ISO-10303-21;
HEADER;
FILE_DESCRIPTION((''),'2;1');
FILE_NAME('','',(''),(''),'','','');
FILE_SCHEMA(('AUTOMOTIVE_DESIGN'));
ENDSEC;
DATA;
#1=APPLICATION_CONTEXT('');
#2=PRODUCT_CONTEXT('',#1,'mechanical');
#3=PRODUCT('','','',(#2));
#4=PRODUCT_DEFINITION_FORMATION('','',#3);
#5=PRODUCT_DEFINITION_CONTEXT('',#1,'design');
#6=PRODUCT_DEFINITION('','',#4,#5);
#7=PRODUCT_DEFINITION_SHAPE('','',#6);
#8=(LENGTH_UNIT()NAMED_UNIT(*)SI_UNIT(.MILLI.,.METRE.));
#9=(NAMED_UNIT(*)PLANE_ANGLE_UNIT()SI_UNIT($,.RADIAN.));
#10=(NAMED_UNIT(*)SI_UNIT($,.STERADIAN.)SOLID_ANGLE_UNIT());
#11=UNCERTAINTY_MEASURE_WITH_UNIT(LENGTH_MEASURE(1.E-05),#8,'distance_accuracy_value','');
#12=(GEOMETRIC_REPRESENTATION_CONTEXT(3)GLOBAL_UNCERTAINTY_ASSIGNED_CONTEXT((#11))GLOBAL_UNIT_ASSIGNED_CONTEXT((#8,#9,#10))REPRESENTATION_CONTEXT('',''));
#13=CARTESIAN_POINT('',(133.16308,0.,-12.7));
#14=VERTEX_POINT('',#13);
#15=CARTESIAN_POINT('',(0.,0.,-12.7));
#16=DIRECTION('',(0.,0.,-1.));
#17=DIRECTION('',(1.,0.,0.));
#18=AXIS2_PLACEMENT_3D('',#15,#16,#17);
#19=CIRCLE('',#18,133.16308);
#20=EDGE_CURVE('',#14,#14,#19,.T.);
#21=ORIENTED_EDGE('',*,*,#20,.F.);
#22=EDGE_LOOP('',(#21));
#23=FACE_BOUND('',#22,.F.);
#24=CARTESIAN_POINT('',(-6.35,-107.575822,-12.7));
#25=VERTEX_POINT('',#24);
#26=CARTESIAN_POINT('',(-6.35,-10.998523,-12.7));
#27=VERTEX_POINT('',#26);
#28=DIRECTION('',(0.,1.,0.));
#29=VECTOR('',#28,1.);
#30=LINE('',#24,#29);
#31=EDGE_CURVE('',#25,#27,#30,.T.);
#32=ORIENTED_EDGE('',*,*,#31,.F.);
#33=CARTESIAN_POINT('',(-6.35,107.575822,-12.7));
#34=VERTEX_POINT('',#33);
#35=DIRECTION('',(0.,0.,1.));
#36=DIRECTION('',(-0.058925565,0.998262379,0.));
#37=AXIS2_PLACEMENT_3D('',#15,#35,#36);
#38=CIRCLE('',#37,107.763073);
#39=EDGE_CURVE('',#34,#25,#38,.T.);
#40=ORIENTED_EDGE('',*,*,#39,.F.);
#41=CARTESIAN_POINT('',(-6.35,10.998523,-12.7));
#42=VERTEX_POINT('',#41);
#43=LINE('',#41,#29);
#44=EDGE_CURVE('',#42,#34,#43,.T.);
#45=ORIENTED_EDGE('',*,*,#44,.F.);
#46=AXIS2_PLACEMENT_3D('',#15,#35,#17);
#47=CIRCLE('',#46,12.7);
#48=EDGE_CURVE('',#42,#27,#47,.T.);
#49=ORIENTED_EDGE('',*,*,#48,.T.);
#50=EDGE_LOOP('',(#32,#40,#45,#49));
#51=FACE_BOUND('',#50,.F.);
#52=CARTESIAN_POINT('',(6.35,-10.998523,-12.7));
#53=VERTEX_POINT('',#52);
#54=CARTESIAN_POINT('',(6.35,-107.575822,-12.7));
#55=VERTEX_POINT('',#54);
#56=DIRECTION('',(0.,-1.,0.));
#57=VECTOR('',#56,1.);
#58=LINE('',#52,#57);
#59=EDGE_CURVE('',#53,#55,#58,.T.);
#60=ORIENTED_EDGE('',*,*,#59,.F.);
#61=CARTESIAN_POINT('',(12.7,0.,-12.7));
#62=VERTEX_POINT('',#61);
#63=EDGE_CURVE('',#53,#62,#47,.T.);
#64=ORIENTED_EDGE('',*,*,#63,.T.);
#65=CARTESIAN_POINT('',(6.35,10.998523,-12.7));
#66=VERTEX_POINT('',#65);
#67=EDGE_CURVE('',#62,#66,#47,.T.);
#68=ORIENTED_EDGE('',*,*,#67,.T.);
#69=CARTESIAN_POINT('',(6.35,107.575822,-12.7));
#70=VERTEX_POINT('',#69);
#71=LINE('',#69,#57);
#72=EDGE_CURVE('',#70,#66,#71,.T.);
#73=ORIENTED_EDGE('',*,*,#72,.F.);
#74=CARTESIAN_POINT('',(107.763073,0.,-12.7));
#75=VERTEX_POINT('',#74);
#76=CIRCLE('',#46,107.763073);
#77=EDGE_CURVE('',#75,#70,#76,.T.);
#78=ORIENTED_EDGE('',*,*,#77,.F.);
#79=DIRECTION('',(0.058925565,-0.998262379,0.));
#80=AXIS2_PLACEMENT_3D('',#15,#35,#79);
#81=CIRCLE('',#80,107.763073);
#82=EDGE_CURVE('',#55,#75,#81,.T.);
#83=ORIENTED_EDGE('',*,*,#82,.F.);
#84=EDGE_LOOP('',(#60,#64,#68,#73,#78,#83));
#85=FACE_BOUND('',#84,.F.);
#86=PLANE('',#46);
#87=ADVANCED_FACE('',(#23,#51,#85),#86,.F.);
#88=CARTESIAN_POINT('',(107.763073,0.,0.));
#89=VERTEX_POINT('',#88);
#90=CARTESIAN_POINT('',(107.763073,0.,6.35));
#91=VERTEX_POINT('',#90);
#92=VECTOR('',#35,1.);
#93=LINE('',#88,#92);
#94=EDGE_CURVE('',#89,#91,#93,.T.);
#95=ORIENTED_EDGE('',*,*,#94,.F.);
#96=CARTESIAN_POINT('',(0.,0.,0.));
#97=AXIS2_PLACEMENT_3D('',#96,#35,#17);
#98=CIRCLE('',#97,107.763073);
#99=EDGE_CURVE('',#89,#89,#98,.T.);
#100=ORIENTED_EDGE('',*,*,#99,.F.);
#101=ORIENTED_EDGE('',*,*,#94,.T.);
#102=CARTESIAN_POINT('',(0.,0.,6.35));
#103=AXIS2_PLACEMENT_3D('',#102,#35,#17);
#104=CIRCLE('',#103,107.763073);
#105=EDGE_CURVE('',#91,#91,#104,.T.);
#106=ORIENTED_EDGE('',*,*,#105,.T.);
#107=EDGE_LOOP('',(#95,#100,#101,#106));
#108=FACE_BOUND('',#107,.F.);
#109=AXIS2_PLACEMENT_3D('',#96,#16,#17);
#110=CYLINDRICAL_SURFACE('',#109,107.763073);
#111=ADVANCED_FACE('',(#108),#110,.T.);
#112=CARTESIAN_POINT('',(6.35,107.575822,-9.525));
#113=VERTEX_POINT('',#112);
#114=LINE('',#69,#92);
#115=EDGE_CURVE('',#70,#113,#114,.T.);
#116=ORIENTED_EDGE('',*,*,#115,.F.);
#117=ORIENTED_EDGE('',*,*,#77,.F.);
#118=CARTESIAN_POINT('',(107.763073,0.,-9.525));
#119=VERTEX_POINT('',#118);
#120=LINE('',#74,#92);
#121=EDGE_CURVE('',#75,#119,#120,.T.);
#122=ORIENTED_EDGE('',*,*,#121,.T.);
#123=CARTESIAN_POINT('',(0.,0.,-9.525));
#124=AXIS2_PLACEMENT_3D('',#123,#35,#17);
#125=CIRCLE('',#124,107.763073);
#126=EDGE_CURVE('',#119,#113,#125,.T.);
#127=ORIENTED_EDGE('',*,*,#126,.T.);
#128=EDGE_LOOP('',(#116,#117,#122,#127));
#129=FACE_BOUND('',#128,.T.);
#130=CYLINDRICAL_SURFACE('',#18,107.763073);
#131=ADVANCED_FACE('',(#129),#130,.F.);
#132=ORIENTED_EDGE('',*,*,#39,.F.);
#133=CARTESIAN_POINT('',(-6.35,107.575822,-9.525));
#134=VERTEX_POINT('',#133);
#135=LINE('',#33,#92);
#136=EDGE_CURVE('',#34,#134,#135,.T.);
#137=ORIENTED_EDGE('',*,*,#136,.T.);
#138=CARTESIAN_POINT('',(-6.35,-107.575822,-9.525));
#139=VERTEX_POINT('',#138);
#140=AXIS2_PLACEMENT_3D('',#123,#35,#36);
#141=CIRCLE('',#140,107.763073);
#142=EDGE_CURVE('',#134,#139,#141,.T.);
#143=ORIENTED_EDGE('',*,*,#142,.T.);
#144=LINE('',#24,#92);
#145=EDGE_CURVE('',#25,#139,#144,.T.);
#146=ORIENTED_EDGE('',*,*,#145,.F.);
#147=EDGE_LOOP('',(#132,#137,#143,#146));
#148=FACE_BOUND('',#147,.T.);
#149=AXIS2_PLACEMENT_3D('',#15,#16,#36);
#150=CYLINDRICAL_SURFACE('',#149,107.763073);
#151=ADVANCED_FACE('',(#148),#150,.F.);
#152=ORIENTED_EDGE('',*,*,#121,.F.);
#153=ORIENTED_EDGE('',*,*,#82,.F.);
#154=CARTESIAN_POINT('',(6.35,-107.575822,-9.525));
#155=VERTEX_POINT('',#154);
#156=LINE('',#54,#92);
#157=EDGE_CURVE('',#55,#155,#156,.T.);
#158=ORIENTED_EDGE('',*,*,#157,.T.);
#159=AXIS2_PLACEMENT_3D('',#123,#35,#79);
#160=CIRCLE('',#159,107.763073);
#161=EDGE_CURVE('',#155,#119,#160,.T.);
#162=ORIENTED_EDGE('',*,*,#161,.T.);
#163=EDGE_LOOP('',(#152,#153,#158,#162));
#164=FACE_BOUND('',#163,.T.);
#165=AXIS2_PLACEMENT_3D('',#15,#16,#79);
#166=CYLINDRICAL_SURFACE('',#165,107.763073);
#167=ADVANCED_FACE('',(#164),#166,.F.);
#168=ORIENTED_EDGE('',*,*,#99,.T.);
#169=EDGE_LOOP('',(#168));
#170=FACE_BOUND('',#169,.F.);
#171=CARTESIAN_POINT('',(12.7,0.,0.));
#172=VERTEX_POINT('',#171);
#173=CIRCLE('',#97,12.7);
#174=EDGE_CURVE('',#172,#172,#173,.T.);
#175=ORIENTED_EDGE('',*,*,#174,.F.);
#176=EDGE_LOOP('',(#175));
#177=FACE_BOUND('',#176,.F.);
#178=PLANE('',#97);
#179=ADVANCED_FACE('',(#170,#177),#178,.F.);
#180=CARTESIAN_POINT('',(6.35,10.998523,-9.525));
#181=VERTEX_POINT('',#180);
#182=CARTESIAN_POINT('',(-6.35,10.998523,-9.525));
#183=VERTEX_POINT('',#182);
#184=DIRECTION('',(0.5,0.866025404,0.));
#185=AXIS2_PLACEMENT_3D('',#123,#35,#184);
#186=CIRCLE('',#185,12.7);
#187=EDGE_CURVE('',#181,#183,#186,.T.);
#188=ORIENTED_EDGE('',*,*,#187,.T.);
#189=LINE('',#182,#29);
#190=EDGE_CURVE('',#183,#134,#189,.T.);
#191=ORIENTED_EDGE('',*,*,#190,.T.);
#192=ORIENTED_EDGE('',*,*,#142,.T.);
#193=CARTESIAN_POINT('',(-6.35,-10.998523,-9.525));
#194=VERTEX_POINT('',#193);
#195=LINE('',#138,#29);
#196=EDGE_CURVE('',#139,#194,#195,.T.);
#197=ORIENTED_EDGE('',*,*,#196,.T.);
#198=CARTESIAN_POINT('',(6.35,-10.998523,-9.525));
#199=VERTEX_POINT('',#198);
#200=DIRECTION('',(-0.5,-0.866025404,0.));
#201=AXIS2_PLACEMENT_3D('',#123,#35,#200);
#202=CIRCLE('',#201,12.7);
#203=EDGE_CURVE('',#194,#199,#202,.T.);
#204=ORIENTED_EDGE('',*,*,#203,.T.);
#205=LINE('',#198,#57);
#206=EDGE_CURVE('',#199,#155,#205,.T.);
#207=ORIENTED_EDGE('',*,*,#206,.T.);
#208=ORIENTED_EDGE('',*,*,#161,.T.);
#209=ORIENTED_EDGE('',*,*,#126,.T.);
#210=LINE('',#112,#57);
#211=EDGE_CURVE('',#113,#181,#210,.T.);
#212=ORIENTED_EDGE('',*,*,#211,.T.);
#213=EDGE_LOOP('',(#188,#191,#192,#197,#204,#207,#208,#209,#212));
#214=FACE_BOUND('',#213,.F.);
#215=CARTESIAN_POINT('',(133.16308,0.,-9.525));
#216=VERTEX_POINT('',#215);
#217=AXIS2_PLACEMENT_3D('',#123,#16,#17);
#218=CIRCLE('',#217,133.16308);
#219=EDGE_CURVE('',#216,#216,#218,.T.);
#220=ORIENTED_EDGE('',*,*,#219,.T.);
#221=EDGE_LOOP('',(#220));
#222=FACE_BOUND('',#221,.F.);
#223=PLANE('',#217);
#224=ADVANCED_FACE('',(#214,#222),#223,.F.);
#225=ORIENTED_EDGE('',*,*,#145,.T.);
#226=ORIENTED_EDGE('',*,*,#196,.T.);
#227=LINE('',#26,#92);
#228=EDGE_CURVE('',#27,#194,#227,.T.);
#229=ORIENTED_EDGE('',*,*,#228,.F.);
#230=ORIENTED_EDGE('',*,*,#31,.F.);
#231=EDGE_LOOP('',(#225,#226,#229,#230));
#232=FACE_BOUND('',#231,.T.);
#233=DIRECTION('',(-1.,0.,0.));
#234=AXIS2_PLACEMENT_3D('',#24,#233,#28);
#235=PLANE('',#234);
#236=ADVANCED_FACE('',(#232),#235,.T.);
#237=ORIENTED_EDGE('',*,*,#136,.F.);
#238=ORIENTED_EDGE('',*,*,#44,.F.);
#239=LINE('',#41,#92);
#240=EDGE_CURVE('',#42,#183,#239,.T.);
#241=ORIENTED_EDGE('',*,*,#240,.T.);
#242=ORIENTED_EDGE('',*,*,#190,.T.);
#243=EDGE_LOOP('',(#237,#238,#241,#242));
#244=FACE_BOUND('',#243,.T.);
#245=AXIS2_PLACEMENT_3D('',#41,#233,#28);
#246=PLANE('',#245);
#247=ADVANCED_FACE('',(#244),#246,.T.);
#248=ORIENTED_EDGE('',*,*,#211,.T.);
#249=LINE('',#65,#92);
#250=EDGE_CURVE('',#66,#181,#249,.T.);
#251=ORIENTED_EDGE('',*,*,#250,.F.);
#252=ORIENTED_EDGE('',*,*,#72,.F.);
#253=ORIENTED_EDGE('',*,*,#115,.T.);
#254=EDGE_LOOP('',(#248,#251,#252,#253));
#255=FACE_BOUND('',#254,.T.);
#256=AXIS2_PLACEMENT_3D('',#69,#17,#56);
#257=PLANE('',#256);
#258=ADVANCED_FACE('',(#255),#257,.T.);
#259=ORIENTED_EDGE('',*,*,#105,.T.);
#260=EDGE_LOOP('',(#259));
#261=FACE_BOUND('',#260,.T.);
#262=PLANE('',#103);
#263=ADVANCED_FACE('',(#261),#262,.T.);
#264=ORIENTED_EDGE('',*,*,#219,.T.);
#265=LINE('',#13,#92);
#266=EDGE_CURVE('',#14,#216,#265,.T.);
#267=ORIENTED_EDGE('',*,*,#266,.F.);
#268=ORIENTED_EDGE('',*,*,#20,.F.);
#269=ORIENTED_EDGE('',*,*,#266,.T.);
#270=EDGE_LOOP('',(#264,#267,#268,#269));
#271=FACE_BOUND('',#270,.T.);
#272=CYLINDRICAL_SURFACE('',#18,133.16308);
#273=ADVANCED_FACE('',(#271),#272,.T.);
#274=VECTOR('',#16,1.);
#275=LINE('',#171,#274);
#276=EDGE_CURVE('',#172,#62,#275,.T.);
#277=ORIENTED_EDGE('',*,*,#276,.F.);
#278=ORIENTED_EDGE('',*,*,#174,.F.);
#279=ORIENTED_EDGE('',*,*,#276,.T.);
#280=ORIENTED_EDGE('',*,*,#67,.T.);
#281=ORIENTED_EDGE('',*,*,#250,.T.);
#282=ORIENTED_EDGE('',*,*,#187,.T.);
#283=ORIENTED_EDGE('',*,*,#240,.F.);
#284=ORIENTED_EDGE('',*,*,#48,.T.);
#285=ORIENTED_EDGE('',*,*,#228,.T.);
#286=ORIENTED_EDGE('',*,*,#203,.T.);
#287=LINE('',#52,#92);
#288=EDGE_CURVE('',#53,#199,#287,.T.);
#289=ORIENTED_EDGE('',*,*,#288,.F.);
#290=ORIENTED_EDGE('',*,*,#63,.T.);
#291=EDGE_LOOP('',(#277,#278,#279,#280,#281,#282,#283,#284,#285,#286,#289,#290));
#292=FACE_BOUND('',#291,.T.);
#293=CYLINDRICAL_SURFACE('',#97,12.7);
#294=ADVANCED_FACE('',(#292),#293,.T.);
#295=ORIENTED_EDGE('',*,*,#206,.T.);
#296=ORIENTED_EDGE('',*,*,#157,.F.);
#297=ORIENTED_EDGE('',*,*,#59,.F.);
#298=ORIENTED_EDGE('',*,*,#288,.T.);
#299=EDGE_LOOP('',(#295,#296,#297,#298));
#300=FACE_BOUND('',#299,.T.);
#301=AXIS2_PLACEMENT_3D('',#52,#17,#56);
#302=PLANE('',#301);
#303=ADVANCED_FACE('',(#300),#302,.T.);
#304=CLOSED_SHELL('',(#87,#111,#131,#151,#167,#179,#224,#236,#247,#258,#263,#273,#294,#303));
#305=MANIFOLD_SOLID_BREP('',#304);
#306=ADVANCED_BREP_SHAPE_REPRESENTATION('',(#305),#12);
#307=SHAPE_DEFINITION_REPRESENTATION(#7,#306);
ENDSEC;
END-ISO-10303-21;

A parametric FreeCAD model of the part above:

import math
import FreeCAD as App
import Part
import Sketcher
from FreeCAD import Vector
Q = App.Units.Quantity

doc = App.newDocument("Part")
params = doc.addObject("Spreadsheet::Sheet", "Params")
for row, (alias, value) in enumerate([
    ("pad1_length", "0.25 in"),
    ("sketch2_diameter", "1 in"),
    ("pad2_length", "0.5 in"),
    ("sketch3_radius", "0.5 in"),
    ("pad3_length", "0.125 in"),
], start=1):
    params.set(f"A{row}", alias)
    params.set(f"B{row}", "=" + value)
    params.setAlias(f"B{row}", alias)

body = doc.addObject("PartDesign::Body", "Body")

sketch1 = body.newObject("Sketcher::SketchObject", "Sketch")
sketch1.AttachmentSupport = (doc.getObject("XY_Plane"), [""])
sketch1.MapMode = "FlatFace"
sketch1.addGeometry(Part.Circle(Vector(0, 0, 0), Vector(0, 0, 1), 107.763073), False)
sketch1.addConstraint(Sketcher.Constraint("Coincident", 0, 3, -1, 1))
sketch1.addConstraint(Sketcher.Constraint("Diameter", 0, Q("215.526147 mm")))
pad1 = body.newObject("PartDesign::Pad", "Pad")
pad1.Profile = sketch1
pad1.setExpression("Length", "Params.pad1_length")

sketch2 = body.newObject("Sketcher::SketchObject", "Sketch001")
sketch2.AttachmentSupport = (doc.getObject("XY_Plane"), [""])
sketch2.MapMode = "FlatFace"
sketch2.addGeometry(Part.Circle(Vector(0, 0, 0), Vector(0, 0, 1), 12.7), False)
sketch2.addConstraint(Sketcher.Constraint("Coincident", 0, 3, -1, 1))
sketch2.addConstraint(Sketcher.Constraint("Diameter", 0, Q("1 in")))
sketch2.setExpression("Constraints[1]", "Params.sketch2_diameter")
pad2 = body.newObject("PartDesign::Pad", "Pad001")
pad2.Profile = sketch2
pad2.setExpression("Length", "Params.pad2_length")
pad2.Reversed = True

sketch3 = body.newObject("Sketcher::SketchObject", "Sketch002")
sketch3.AttachmentSupport = (doc.getObject("XY_Plane"), [""])
sketch3.MapMode = "FlatFace"
sketch3.AttachmentOffset = App.Placement(Vector(0, 0, -0.5 * 25.4), App.Rotation())
sketch3.addGeometry(Part.Circle(Vector(0, 0, 0), Vector(0, 0, 1), 133.16308), False)
sketch3.addGeometry(Part.ArcOfCircle(Part.Circle(Vector(0, 0, 0), Vector(0, 0, 1), 107.763073), math.radians(-86.621857), math.radians(0)), False)
sketch3.addGeometry(Part.ArcOfCircle(Part.Circle(Vector(0, 0, 0), Vector(0, 0, 1), 107.763073), math.radians(0), math.radians(86.621857)), False)
sketch3.addGeometry(Part.LineSegment(Vector(6.35, 107.575822, 0), Vector(6.35, 10.998523, 0)), False)
sketch3.addGeometry(Part.ArcOfCircle(Part.Circle(Vector(0, 0, 0), Vector(0, 0, 1), 12.7), math.radians(60), math.radians(120)), False)
sketch3.addGeometry(Part.LineSegment(Vector(-6.35, 10.998523, 0), Vector(-6.35, 107.575822, 0)), False)
sketch3.addGeometry(Part.ArcOfCircle(Part.Circle(Vector(0, 0, 0), Vector(0, 0, 1), 107.763073), math.radians(93.378143), math.radians(266.621857)), False)
sketch3.addGeometry(Part.LineSegment(Vector(-6.35, -107.575822, 0), Vector(-6.35, -10.998523, 0)), False)
sketch3.addGeometry(Part.ArcOfCircle(Part.Circle(Vector(0, 0, 0), Vector(0, 0, 1), 12.7), math.radians(-120), math.radians(-60)), False)
sketch3.addGeometry(Part.LineSegment(Vector(6.35, -10.998523, 0), Vector(6.35, -107.575822, 0)), False)
sketch3.addConstraint(Sketcher.Constraint("Tangent", 1, 2, 2, 1))
sketch3.addConstraint(Sketcher.Constraint("Coincident", 2, 2, 3, 1))
sketch3.addConstraint(Sketcher.Constraint("Coincident", 3, 2, 4, 1))
sketch3.addConstraint(Sketcher.Constraint("Coincident", 4, 2, 5, 1))
sketch3.addConstraint(Sketcher.Constraint("Coincident", 5, 2, 6, 1))
sketch3.addConstraint(Sketcher.Constraint("Coincident", 6, 2, 7, 1))
sketch3.addConstraint(Sketcher.Constraint("Coincident", 7, 2, 8, 1))
sketch3.addConstraint(Sketcher.Constraint("Coincident", 8, 2, 9, 1))
sketch3.addConstraint(Sketcher.Constraint("Coincident", 9, 2, 1, 1))
sketch3.addConstraint(Sketcher.Constraint("Vertical", 3))
sketch3.addConstraint(Sketcher.Constraint("Vertical", 5))
sketch3.addConstraint(Sketcher.Constraint("Vertical", 7))
sketch3.addConstraint(Sketcher.Constraint("Vertical", 9))
sketch3.addConstraint(Sketcher.Constraint("Coincident", 0, 3, -1, 1))
sketch3.addConstraint(Sketcher.Constraint("Coincident", 1, 3, -1, 1))
sketch3.addConstraint(Sketcher.Constraint("Coincident", 4, 3, -1, 1))
sketch3.addConstraint(Sketcher.Constraint("Coincident", 6, 3, -1, 1))
sketch3.addConstraint(Sketcher.Constraint("Coincident", 8, 3, -1, 1))
sketch3.addConstraint(Sketcher.Constraint("Equal", 1, 2))
sketch3.addConstraint(Sketcher.Constraint("Equal", 2, 6))
sketch3.addConstraint(Sketcher.Constraint("Equal", 4, 8))
sketch3.addConstraint(Sketcher.Constraint("PointOnObject", 1, 2, -1))
sketch3.addConstraint(Sketcher.Constraint("Horizontal", 3, 2, 4, 2))
sketch3.addConstraint(Sketcher.Constraint("Horizontal", 7, 2, 8, 2))
sketch3.addConstraint(Sketcher.Constraint("Vertical", 5, 2, 6, 2))
sketch3.addConstraint(Sketcher.Constraint("Radius", 4, Q("0.5 in")))
sketch3.addConstraint(Sketcher.Constraint("DistanceX", 5, 2, 2, 2, Q("0.5 in")))
sketch3.addConstraint(Sketcher.Constraint("Diameter", 0, Q("266.326159 mm")))
sketch3.addConstraint(Sketcher.Constraint("DistanceY", 3, 2, 3, 1, Q("96.577299 mm")))
sketch3.setExpression("Constraints[25]", "Params.sketch3_radius")
pad3 = body.newObject("PartDesign::Pad", "Pad002")
pad3.Profile = sketch3
pad3.setExpression("Length", "Params.pad3_length")

doc.recompute()
